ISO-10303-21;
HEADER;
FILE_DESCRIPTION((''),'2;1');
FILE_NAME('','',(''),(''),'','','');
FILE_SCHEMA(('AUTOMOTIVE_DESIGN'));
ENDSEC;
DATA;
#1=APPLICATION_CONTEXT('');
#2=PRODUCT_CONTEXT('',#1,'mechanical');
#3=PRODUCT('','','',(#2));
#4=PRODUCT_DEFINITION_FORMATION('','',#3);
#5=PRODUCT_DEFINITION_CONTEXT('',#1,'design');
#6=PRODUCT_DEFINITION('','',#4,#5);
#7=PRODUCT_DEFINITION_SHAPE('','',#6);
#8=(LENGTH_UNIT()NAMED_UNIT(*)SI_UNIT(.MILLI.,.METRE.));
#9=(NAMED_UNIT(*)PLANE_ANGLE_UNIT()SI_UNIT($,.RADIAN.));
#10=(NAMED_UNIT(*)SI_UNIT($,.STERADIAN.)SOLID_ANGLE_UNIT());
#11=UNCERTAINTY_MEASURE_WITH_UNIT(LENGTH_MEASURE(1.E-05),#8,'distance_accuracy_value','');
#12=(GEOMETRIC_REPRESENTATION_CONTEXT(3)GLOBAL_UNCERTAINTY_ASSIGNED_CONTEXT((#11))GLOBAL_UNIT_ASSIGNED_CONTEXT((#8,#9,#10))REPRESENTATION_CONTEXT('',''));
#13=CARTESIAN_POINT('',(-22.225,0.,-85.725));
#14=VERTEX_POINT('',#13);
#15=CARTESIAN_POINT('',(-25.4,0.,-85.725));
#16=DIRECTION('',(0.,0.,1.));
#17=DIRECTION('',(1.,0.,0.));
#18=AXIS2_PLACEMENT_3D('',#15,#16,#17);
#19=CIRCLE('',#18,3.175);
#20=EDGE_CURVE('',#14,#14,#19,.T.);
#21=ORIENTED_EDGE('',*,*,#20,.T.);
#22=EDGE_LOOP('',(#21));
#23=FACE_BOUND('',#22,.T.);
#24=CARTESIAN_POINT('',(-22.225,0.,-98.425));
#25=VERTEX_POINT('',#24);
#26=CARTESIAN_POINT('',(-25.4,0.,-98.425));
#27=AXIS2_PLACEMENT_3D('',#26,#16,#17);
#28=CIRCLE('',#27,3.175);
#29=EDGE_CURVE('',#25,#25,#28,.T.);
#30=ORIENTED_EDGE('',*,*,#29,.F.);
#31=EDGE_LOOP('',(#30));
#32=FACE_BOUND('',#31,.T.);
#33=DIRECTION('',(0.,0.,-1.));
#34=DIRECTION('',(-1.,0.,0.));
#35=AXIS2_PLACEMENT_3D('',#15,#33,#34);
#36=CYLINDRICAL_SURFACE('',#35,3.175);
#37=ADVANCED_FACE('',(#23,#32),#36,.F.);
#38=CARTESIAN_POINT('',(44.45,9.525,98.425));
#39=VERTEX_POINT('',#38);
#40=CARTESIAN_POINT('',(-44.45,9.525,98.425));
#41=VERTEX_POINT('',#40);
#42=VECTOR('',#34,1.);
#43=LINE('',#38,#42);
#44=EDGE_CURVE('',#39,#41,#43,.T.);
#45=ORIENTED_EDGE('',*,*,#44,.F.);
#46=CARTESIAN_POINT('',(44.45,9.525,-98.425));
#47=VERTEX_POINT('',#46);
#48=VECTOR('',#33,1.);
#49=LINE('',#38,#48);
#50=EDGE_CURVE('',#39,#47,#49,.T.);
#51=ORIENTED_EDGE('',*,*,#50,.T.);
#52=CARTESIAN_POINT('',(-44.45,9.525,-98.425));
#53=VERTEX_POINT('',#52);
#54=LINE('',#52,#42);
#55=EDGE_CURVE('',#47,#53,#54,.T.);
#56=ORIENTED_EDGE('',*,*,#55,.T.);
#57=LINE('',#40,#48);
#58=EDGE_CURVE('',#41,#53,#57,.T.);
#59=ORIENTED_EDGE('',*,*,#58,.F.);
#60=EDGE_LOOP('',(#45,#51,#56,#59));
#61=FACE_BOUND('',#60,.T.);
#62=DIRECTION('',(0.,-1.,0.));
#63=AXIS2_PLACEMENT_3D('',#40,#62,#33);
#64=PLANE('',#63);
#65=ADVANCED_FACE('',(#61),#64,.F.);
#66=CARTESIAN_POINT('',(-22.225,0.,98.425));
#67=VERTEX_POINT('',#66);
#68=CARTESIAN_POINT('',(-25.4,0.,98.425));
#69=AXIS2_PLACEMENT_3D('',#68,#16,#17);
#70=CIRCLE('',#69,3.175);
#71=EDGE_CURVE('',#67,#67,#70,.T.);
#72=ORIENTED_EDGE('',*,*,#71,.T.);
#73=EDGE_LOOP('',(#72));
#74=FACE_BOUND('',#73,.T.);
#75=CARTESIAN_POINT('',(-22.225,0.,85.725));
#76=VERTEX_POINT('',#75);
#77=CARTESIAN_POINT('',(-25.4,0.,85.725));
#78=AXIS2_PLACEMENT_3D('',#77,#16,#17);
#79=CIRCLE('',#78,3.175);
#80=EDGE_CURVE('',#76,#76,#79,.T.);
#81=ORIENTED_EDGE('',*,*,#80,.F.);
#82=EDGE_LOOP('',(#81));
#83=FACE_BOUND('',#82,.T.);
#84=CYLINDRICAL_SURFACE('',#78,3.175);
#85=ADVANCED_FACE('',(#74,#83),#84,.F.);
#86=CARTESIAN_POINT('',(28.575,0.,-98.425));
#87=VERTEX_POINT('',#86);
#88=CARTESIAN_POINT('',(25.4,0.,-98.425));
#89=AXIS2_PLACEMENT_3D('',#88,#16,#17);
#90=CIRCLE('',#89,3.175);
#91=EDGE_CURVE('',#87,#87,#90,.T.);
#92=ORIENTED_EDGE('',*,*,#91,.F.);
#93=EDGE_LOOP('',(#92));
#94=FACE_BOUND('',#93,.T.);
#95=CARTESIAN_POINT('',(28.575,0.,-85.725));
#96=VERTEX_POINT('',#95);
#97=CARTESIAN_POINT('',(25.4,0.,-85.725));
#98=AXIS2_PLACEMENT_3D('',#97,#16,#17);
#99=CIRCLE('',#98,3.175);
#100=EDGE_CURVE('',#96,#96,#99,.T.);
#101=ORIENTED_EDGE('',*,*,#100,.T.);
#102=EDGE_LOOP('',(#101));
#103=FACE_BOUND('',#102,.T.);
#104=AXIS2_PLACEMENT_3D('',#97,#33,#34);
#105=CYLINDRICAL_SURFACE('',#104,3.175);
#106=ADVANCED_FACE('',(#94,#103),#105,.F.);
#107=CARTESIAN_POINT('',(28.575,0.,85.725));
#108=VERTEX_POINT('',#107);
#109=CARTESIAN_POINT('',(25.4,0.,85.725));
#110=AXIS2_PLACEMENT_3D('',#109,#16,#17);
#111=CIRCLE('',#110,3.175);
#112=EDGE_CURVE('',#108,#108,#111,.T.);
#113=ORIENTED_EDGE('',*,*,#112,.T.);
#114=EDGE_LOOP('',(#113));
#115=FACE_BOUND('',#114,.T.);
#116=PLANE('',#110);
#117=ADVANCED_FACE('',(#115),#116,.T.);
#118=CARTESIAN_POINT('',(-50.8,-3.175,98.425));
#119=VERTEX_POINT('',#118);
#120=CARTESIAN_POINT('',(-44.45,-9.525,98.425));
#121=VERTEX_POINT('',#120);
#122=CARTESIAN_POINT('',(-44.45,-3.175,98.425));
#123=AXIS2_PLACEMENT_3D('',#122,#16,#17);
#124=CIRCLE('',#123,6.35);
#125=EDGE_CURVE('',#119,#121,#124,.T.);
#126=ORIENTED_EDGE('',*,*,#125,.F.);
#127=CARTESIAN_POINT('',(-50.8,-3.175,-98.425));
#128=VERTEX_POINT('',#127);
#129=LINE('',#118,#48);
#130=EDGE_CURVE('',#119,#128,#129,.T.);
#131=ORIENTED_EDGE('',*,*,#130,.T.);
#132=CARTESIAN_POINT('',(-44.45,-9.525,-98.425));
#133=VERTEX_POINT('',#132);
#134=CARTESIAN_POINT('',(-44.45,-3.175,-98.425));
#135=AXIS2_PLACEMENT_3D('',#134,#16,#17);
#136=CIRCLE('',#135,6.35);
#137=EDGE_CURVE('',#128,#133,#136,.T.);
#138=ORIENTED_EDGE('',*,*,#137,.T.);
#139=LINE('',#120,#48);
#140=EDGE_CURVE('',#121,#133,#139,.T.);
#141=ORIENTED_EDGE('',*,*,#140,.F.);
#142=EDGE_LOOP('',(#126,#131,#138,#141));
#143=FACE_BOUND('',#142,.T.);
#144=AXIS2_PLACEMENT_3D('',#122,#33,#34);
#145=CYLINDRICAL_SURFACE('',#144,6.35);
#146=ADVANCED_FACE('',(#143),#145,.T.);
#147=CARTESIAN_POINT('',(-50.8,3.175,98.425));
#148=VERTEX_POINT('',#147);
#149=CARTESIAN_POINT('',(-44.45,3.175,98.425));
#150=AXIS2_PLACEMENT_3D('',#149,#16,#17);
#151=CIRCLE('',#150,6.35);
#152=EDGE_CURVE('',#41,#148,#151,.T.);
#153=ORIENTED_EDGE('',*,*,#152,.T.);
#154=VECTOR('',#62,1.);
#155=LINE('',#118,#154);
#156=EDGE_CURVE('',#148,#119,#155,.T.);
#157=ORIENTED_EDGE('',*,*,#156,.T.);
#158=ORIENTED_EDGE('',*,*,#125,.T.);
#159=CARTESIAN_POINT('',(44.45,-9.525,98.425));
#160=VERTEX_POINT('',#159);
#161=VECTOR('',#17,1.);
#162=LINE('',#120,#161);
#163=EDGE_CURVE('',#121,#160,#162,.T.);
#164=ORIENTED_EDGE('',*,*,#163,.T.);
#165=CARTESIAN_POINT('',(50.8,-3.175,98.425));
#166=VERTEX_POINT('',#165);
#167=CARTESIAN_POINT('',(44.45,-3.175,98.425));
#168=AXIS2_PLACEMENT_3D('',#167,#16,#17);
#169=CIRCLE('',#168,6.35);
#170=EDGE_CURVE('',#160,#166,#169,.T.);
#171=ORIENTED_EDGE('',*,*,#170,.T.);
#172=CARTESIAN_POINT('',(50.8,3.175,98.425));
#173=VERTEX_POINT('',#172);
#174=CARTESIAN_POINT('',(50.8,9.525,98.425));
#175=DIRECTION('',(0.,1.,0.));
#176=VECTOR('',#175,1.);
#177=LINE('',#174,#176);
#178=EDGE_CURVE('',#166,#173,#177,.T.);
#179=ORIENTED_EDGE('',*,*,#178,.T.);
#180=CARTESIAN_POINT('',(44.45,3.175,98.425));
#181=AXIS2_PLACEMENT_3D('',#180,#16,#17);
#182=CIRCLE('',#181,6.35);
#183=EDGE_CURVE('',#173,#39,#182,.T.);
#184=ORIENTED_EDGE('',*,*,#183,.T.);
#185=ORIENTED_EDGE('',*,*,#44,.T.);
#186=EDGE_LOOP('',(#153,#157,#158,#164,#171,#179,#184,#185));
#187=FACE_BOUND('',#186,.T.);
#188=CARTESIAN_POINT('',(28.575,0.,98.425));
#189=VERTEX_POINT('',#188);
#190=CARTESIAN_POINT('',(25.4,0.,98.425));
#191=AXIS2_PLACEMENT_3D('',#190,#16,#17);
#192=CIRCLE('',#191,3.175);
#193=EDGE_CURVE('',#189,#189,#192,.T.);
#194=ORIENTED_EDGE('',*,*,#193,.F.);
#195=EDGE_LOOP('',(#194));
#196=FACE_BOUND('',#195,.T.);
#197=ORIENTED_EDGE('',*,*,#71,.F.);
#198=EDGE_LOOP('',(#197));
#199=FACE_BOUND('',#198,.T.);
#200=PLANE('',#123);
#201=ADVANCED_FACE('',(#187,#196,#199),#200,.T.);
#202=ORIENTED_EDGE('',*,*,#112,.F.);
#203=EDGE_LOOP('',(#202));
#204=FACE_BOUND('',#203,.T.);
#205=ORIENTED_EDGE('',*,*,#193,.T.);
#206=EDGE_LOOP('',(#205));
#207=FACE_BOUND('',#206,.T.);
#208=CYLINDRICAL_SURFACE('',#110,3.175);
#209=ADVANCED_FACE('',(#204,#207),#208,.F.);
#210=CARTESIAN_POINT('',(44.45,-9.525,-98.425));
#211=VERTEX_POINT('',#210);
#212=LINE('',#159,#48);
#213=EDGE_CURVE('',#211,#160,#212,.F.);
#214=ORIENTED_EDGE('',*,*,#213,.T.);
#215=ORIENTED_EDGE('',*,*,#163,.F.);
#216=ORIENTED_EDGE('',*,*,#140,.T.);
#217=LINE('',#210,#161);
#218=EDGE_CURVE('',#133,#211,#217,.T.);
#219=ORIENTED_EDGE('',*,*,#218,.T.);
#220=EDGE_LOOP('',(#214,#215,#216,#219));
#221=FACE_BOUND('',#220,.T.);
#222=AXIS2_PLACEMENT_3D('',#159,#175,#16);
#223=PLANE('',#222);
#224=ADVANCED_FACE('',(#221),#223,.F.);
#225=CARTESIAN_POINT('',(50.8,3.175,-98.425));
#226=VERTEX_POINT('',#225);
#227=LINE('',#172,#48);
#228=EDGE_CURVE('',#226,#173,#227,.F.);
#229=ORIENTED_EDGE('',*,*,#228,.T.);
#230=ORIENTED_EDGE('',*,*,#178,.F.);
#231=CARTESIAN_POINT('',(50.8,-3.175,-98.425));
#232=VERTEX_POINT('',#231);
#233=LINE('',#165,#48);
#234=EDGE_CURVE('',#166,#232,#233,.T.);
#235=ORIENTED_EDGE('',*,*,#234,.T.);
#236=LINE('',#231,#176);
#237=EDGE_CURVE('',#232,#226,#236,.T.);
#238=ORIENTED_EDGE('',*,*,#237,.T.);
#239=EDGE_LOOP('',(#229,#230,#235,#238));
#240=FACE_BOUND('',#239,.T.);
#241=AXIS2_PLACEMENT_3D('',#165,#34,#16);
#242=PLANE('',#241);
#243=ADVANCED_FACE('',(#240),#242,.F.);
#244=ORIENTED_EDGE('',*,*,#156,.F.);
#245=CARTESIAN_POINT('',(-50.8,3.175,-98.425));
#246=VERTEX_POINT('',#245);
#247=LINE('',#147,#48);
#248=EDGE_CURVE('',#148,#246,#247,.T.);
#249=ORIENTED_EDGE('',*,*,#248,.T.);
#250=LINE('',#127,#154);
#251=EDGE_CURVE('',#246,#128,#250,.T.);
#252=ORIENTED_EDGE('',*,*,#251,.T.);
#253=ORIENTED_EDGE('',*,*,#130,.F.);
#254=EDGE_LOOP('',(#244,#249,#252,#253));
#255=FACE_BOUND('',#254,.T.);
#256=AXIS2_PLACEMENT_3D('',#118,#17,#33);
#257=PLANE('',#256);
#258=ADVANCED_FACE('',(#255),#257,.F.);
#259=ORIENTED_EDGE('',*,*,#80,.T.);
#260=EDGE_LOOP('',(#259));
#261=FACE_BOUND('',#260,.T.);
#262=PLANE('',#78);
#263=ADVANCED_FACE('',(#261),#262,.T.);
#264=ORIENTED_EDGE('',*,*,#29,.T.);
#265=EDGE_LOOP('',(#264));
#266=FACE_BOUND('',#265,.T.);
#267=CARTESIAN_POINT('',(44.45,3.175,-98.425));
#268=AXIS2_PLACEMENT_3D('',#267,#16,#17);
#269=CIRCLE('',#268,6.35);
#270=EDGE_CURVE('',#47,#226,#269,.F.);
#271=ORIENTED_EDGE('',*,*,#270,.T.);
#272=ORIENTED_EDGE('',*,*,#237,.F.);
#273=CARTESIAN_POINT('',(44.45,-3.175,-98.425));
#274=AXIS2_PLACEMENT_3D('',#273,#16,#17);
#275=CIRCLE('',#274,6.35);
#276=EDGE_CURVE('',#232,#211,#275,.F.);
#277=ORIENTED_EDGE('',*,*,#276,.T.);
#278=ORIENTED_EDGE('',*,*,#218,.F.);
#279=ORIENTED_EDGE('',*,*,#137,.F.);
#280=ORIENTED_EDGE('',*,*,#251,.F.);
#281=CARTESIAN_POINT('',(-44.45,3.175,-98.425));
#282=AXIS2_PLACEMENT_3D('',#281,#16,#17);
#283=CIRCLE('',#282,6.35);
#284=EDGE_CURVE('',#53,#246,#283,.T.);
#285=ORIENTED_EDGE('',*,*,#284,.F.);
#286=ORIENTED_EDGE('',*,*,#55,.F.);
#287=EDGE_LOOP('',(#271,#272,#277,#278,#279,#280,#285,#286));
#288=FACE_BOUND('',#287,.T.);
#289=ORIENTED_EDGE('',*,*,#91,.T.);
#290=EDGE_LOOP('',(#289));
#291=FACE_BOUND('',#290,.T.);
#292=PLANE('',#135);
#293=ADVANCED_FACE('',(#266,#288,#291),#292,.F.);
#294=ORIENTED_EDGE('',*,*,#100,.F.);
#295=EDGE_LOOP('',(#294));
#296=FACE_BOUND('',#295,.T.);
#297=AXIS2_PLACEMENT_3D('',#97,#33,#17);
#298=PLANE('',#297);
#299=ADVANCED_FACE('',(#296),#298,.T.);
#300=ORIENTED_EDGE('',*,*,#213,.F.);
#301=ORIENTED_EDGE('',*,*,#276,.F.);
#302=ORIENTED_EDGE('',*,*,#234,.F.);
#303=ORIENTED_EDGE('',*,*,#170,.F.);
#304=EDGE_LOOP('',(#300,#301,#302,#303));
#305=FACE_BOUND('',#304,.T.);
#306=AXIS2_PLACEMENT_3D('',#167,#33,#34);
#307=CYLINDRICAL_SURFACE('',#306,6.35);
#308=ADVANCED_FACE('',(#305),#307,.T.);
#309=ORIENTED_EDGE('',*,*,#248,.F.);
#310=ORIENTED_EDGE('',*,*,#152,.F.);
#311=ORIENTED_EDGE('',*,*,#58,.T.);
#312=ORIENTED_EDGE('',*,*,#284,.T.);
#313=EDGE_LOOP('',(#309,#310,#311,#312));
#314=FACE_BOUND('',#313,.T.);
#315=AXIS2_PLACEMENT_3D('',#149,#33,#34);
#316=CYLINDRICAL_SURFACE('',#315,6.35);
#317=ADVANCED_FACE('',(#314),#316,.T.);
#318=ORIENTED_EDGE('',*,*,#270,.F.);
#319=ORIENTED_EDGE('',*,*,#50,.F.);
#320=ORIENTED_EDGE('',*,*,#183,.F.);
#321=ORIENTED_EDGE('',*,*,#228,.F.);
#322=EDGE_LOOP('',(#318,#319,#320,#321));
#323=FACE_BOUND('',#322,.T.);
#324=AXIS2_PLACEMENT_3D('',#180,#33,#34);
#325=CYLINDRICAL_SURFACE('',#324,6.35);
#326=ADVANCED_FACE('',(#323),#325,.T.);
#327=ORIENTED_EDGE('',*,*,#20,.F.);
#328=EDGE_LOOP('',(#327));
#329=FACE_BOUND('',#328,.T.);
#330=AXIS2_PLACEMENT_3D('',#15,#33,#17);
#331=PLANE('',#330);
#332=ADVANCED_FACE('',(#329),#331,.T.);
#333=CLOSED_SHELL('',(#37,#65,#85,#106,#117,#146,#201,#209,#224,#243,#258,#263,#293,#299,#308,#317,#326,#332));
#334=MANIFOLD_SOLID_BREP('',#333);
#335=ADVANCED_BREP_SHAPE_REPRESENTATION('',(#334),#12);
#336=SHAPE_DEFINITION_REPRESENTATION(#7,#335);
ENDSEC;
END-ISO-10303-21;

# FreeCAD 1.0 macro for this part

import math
import FreeCAD as App
import Part
import Sketcher
Q = App.Units.Quantity


def edges_at(feature, points):
    """Names of the edges that pass closest to the given points."""
    edges = feature.Shape.Edges
    near = lambda p: min(range(len(edges)), key=lambda i: edges[i].distToShape(Part.Vertex(*p))[0])
    return sorted({f"Edge{near(p) + 1}" for p in points})

doc = App.newDocument("Part")
body = doc.addObject("PartDesign::Body", "Body")

# Sketch on XY plane
sketch1 = body.newObject("Sketcher::SketchObject", "Sketch")
sketch1.AttachmentSupport = (doc.getObject("XY_Plane"), [""])
sketch1.MapMode = "FlatFace"
sketch1.addGeometry(Part.LineSegment(App.Vector(51, -10, 0), App.Vector(51, 10, 0)), False)
sketch1.addGeometry(Part.LineSegment(App.Vector(51, 10, 0), App.Vector(-44, 10, 0)), False)
sketch1.addGeometry(Part.ArcOfCircle(Part.Circle(App.Vector(-44, 3, 0), App.Vector(0, 0, 1), 6), math.radians(90), math.radians(180)), False)
sketch1.addGeometry(Part.LineSegment(App.Vector(-51, 3, 0), App.Vector(-51, -3, 0)), False)
sketch1.addGeometry(Part.ArcOfCircle(Part.Circle(App.Vector(-44, -3, 0), App.Vector(0, 0, 1), 6), math.radians(180), math.radians(270)), False)
sketch1.addGeometry(Part.LineSegment(App.Vector(-44, -10, 0), App.Vector(51, -10, 0)), False)
sketch1.addConstraint(Sketcher.Constraint("Coincident", 0, 2, 1, 1))
sketch1.addConstraint(Sketcher.Constraint("Tangent", 1, 2, 2, 1))
sketch1.addConstraint(Sketcher.Constraint("Tangent", 2, 2, 3, 1))
sketch1.addConstraint(Sketcher.Constraint("Tangent", 3, 2, 4, 1))
sketch1.addConstraint(Sketcher.Constraint("Tangent", 4, 2, 5, 1))
sketch1.addConstraint(Sketcher.Constraint("Coincident", 5, 2, 0, 1))
sketch1.addConstraint(Sketcher.Constraint("Vertical", 0))
sketch1.addConstraint(Sketcher.Constraint("Horizontal", 1))
sketch1.addConstraint(Sketcher.Constraint("Vertical", 3))
sketch1.addConstraint(Sketcher.Constraint("Horizontal", 5))
sketch1.addConstraint(Sketcher.Constraint("Equal", 2, 4))
sketch1.addConstraint(Sketcher.Constraint("Radius", 2, Q("0.25 in")))
sketch1.addConstraint(Sketcher.Constraint("DistanceX", -1, 1, 0, 2, Q("2 in")))
sketch1.addConstraint(Sketcher.Constraint("DistanceX", 2, 2, -1, 1, Q("2 in")))
sketch1.addConstraint(Sketcher.Constraint("DistanceY", 0, 1, 0, 2, Q("0.75 in")))
sketch1.addConstraint(Sketcher.Constraint("DistanceY", -1, 1, 2, 3, Q("0.125 in")))
pad1 = body.newObject("PartDesign::Pad", "Pad")
pad1.Profile = sketch1
pad1.Length = Q("7.75 in")
pad1.Midplane = True

# Sketch on XY plane
sketch2 = body.newObject("Sketcher::SketchObject", "Sketch001")
sketch2.AttachmentSupport = (doc.getObject("XY_Plane"), [""])
sketch2.MapMode = "FlatFace"
sketch2.AttachmentOffset = App.Placement(App.Vector(0, 0, 3.875 * 25.4), App.Rotation())
sketch2.addGeometry(Part.Circle(App.Vector(-25.4, 0, 0), App.Vector(0, 0, 1), 3.2), False)
sketch2.addGeometry(Part.Circle(App.Vector(25.4, 0, 0), App.Vector(0, 0, 1), 3.2), False)
sketch2.addConstraint(Sketcher.Constraint("Equal", 0, 1))
sketch2.addConstraint(Sketcher.Constraint("Symmetric", 0, 3, 1, 3, -1, 1))
sketch2.addConstraint(Sketcher.Constraint("PointOnObject", 0, 3, -1))
sketch2.addConstraint(Sketcher.Constraint("Diameter", 0, Q("0.25 in")))
sketch2.addConstraint(Sketcher.Constraint("DistanceX", 0, 3, -1, 1, Q("1 in")))
pocket1 = body.newObject("PartDesign::Pocket", "Pocket")
pocket1.Profile = sketch2
pocket1.Length = Q("0.5 in")
doc.recompute()

fillet = body.newObject("PartDesign::Fillet", "Fillet")
fillet.Base = (pocket1, edges_at(pocket1, [(50.8, -9.525, 0), (50.8, 9.525, 0)]))
fillet.Radius = Q("0.25 in")
doc.recompute()

mirrored = body.newObject("PartDesign::Mirrored", "Mirrored")
mirrored.Originals = [pocket1]
mirrored.MirrorPlane = (doc.getObject("XY_Plane"), [""])
body.Tip = mirrored

doc.recompute()
